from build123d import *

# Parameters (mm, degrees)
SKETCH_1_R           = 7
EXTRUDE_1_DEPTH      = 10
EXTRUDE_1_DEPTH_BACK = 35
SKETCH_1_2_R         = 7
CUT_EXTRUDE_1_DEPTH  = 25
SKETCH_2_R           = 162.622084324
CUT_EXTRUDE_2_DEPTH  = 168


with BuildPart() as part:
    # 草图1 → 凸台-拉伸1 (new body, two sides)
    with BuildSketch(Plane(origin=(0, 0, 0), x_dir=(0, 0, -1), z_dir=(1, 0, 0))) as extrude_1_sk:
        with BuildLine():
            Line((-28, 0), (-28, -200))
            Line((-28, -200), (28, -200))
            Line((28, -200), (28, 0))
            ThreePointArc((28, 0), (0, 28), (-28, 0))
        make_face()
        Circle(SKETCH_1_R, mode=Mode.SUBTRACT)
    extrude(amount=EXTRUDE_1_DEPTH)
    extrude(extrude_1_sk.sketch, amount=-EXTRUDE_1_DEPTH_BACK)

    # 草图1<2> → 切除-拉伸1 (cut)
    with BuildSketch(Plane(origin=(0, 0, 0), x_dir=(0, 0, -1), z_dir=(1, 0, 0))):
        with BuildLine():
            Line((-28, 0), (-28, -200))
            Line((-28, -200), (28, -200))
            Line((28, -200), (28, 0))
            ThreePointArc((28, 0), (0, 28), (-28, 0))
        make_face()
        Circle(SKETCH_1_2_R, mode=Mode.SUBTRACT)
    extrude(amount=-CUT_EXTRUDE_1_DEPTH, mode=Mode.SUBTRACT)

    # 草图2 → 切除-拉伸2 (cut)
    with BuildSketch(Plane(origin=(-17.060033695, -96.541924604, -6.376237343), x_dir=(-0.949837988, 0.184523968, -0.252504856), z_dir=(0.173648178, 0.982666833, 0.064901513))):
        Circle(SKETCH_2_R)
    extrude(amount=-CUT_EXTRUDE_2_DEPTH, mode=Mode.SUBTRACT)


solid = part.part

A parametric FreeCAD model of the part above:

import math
import FreeCAD as App
import Part
import Sketcher

V = App.Vector
Q = App.Units.Quantity

doc = App.newDocument("Part")
params = doc.addObject("Spreadsheet::Sheet", "Params")
for row, (alias, value) in enumerate([
    ("sketch1_diameter", "14 mm"),
    ("sketch1_radius", "28 mm"),
    ("sketch1_width", "200 mm"),
    ("pad1_length", "10 mm"),
    ("pad1_length2", "35 mm"),
    ("sketch2_diameter", "14 mm"),
    ("sketch2_radius", "28 mm"),
    ("sketch2_width", "200 mm"),
    ("pocket1_length", "25 mm"),
    ("pocket2_length", "168 mm"),
], start=1):
    params.set(f"A{row}", alias)
    params.set(f"B{row}", "=" + value)
    params.setAlias(f"B{row}", alias)

body = doc.addObject("PartDesign::Body", "Body")
body.AllowCompound = True

# Sketch on YZ plane
sketch1 = doc.addObject("Sketcher::SketchObject", "Sketch")
body.addObject(sketch1)
sketch1.AttachmentSupport = (doc.YZ_Plane, [""])
sketch1.MapMode = "FlatFace"
sketch1.addGeometry([
    Part.LineSegment(V(0, 28, 0), V(-200, 28, 0)),  # 0
    Part.LineSegment(V(-200, 28, 0), V(-200, -28, 0)),  # 1
    Part.LineSegment(V(-200, -28, 0), V(0, -28, 0)),  # 2
    Part.ArcOfCircle(Part.Circle(V(0, 0, 0), V(0, 0, 1), 28), math.radians(-90), math.radians(90)),  # 3
    Part.Circle(V(0, 0, 0), V(0, 0, 1), 7),  # 4
], False)
sketch1.addConstraint([
    Sketcher.Constraint("Coincident", 0, 2, 1, 1),
    Sketcher.Constraint("Coincident", 1, 2, 2, 1),
    Sketcher.Constraint("Tangent", 2, 2, 3, 1),
    Sketcher.Constraint("Tangent", 3, 2, 0, 1),
    Sketcher.Constraint("Horizontal", 0),
    Sketcher.Constraint("Vertical", 1),
    Sketcher.Constraint("Horizontal", 2),
    Sketcher.Constraint("Coincident", 3, 3, -1, 1),
    Sketcher.Constraint("Coincident", 4, 3, -1, 1),
    Sketcher.Constraint("Diameter", 4, Q("14 mm")),
    Sketcher.Constraint("Radius", 3, Q("28 mm")),
    Sketcher.Constraint("DistanceX", 0, 2, 0, 1, Q("200 mm")),
])
sketch1.setExpression("Constraints[9]", "Params.sketch1_diameter")
sketch1.setExpression("Constraints[10]", "Params.sketch1_radius")
sketch1.setExpression("Constraints[11]", "Params.sketch1_width")
pad1 = doc.addObject("PartDesign::Pad", "Pad")
body.addObject(pad1)
pad1.Profile = sketch1
pad1.Type = "TwoLengths"
pad1.setExpression("Length", "Params.pad1_length")
pad1.setExpression("Length2", "Params.pad1_length2")

# Sketch on YZ plane
sketch2 = doc.addObject("Sketcher::SketchObject", "Sketch001")
body.addObject(sketch2)
sketch2.AttachmentSupport = (doc.YZ_Plane, [""])
sketch2.MapMode = "FlatFace"
sketch2.addGeometry([
    Part.LineSegment(V(0, 28, 0), V(-200, 28, 0)),  # 0
    Part.LineSegment(V(-200, 28, 0), V(-200, -28, 0)),  # 1
    Part.LineSegment(V(-200, -28, 0), V(0, -28, 0)),  # 2
    Part.ArcOfCircle(Part.Circle(V(0, 0, 0), V(0, 0, 1), 28), math.radians(-90), math.radians(90)),  # 3
    Part.Circle(V(0, 0, 0), V(0, 0, 1), 7),  # 4
], False)
sketch2.addConstraint([
    Sketcher.Constraint("Coincident", 0, 2, 1, 1),
    Sketcher.Constraint("Coincident", 1, 2, 2, 1),
    Sketcher.Constraint("Tangent", 2, 2, 3, 1),
    Sketcher.Constraint("Tangent", 3, 2, 0, 1),
    Sketcher.Constraint("Horizontal", 0),
    Sketcher.Constraint("Vertical", 1),
    Sketcher.Constraint("Horizontal", 2),
    Sketcher.Constraint("Coincident", 3, 3, -1, 1),
    Sketcher.Constraint("Coincident", 4, 3, -1, 1),
    Sketcher.Constraint("Diameter", 4, Q("14 mm")),
    Sketcher.Constraint("Radius", 3, Q("28 mm")),
    Sketcher.Constraint("DistanceX", 0, 2, 0, 1, Q("200 mm")),
])
sketch2.setExpression("Constraints[9]", "Params.sketch2_diameter")
sketch2.setExpression("Constraints[10]", "Params.sketch2_radius")
sketch2.setExpression("Constraints[11]", "Params.sketch2_width")
pocket1 = doc.addObject("PartDesign::Pocket", "Pocket")
body.addObject(pocket1)
pocket1.Profile = sketch2
pocket1.setExpression("Length", "Params.pocket1_length")

# Sketch on an angled plane
sketch3 = doc.addObject("Sketcher::SketchObject", "Sketch002")
body.addObject(sketch3)
sketch3.Placement = App.Placement(V(-17.060034, -96.541925, -6.376237), App.Rotation(V(-0.949837988, 0.184523968, -0.252504856), V(-0.260104032, -0.017798914, 0.965416538), V(0.173648178, 0.982666833, 0.064901513), "ZXY"))
sketch3.addGeometry(Part.Circle(V(0, 0, 0), V(0, 0, 1), 163), False)
sketch3.addConstraint([
    Sketcher.Constraint("Coincident", 0, 3, -1, 1),
    Sketcher.Constraint("Diameter", 0, Q("325.244169 mm")),
])
pocket2 = doc.addObject("PartDesign::Pocket", "Pocket001")
body.addObject(pocket2)
pocket2.Profile = sketch3
pocket2.setExpression("Length", "Params.pocket2_length")

doc.recompute()
